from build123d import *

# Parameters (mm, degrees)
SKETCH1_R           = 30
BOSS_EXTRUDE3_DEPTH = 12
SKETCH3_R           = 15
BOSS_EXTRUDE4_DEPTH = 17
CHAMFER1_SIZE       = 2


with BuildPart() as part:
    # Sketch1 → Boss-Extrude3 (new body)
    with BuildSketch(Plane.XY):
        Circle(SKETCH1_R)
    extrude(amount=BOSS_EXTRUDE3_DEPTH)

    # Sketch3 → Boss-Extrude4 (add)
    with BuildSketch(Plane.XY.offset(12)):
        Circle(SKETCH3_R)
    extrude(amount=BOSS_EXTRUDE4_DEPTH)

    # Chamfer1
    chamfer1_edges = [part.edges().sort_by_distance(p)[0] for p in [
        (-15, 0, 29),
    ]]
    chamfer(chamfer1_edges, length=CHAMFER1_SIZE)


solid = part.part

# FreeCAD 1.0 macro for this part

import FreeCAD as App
import Part
import Sketcher

V = App.Vector


def edges_at(feature, points):
    """Names of the edges that pass closest to the given points."""
    edges = feature.Shape.Edges
    near = lambda p: min(range(len(edges)), key=lambda i: edges[i].distToShape(Part.Vertex(*p))[0])
    return sorted({f"Edge{near(p) + 1}" for p in points})

doc = App.newDocument("Part")
body = doc.addObject("PartDesign::Body", "Body")

# Sketch on XY plane
sketch1 = doc.addObject("Sketcher::SketchObject", "Sketch")
body.addObject(sketch1)
sketch1.AttachmentSupport = (doc.XY_Plane, [""])
sketch1.MapMode = "FlatFace"
sketch1.addGeometry(Part.Circle(V(0, 0, 0), V(0, 0, 1), 30), False)
sketch1.addConstraint(Sketcher.Constraint("Coincident", 0, 3, -1, 1))
sketch1.addConstraint(Sketcher.Constraint("Diameter", 0, 60.0))
pad1 = doc.addObject("PartDesign::Pad", "Pad")
body.addObject(pad1)
pad1.Profile = sketch1
pad1.Length = 12

# Sketch on XY plane
sketch2 = doc.addObject("Sketcher::SketchObject", "Sketch001")
body.addObject(sketch2)
sketch2.AttachmentSupport = (doc.XY_Plane, [""])
sketch2.MapMode = "FlatFace"
sketch2.AttachmentOffset = App.Placement(V(0, 0, 12), App.Rotation())
sketch2.addGeometry(Part.Circle(V(0, 0, 0), V(0, 0, 1), 15), False)
sketch2.addConstraint(Sketcher.Constraint("Coincident", 0, 3, -1, 1))
sketch2.addConstraint(Sketcher.Constraint("Diameter", 0, 30.0))
pad2 = doc.addObject("PartDesign::Pad", "Pad001")
body.addObject(pad2)
pad2.Profile = sketch2
pad2.Length = 17
doc.recompute()

chamfer = doc.addObject("PartDesign::Chamfer", "Chamfer")
body.addObject(chamfer)
chamfer.Base = (pad2, edges_at(pad2, [(-15, 0, 29)]))
chamfer.Size = 2

doc.recompute()
